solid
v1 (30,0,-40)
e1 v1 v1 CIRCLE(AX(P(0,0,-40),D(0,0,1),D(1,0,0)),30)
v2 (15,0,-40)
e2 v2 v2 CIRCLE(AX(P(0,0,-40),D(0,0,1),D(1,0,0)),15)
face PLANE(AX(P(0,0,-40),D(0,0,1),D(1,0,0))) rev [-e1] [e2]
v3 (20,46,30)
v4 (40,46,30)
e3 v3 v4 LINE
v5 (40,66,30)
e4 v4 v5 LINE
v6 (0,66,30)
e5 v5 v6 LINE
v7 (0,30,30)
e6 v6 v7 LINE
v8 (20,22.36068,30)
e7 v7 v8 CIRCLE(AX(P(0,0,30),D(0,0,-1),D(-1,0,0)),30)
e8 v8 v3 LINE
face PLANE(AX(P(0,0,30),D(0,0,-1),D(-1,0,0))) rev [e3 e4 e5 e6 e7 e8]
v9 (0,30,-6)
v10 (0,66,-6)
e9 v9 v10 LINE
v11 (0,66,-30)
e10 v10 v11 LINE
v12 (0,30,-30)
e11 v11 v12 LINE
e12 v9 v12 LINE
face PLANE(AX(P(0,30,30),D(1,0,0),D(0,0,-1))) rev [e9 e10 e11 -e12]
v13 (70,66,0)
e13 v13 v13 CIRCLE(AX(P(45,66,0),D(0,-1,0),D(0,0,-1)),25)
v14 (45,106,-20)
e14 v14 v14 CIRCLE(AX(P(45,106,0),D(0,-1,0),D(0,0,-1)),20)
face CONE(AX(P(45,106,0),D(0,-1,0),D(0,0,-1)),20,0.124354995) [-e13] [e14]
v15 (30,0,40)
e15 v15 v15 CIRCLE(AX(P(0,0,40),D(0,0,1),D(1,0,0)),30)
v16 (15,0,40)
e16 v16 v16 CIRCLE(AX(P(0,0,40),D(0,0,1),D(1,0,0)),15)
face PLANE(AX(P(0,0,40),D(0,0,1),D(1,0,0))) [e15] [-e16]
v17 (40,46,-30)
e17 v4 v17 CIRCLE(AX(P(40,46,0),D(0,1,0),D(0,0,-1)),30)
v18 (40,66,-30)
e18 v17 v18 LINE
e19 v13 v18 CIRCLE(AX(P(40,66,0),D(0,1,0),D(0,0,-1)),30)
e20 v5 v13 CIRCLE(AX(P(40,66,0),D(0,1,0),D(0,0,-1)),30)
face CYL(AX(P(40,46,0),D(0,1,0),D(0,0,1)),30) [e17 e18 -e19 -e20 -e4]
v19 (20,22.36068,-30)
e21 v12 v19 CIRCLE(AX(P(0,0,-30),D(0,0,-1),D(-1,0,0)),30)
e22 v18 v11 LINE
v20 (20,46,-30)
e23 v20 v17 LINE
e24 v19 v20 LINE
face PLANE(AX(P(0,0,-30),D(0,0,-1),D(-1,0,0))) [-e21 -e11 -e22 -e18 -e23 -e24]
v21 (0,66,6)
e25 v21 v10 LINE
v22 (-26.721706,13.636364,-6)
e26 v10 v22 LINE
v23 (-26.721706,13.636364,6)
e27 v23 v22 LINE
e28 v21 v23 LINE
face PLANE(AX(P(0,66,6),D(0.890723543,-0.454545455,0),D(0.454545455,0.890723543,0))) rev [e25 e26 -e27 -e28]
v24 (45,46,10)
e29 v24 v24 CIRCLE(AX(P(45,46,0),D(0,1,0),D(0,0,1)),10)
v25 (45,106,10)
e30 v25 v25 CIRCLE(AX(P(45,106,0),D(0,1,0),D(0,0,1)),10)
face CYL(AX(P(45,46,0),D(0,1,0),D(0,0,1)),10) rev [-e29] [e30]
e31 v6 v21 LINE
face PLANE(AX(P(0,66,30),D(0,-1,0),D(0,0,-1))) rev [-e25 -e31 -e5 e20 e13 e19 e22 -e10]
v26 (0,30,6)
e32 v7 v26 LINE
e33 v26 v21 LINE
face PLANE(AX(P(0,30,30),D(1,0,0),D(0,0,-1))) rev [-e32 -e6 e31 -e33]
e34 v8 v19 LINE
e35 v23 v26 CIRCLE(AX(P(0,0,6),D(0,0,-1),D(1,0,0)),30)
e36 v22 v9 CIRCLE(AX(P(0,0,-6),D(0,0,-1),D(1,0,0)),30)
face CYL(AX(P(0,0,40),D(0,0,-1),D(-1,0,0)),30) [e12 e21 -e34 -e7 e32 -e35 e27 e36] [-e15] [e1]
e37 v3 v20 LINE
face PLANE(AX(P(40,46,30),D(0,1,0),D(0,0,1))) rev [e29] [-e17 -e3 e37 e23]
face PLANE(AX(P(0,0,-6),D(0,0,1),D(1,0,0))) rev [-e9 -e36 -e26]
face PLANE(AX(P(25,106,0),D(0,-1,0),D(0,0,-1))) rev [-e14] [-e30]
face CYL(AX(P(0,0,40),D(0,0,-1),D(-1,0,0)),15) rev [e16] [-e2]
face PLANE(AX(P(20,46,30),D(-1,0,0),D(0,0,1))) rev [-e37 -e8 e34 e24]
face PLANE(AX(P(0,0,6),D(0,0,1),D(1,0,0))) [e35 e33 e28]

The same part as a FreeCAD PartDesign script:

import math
import FreeCAD as App
import Part
import Sketcher

doc = App.newDocument("Part")
body = doc.addObject("PartDesign::Body", "Body")

sketch1 = body.newObject("Sketcher::SketchObject", "Sketch")
sketch1.AttachmentSupport = (doc.getObject("XY_Plane"), [""])
sketch1.MapMode = "FlatFace"
sketch1.addGeometry([
    Part.Circle(App.Vector(0, 0, 0), App.Vector(0, 0, 1), 30),
    Part.Circle(App.Vector(0, 0, 0), App.Vector(0, 0, 1), 15),
], False)
sketch1.addConstraint([
    Sketcher.Constraint("Coincident", 0, 3, -1, 1),
    Sketcher.Constraint("Coincident", 1, 3, -1, 1),
    Sketcher.Constraint("Diameter", 0, 60.0),
    Sketcher.Constraint("Diameter", 1, 30.0),
])
pad1 = body.newObject("PartDesign::Pad", "Pad")
pad1.Profile = sketch1
pad1.Length = 80
pad1.Midplane = True

sketch2 = body.newObject("Sketcher::SketchObject", "Sketch001")
sketch2.AttachmentSupport = (doc.getObject("XY_Plane"), [""])
sketch2.MapMode = "FlatFace"
sketch2.addGeometry([
    Part.LineSegment(App.Vector(0, 66, 0), App.Vector(0, 30, 0)),
    Part.ArcOfCircle(Part.Circle(App.Vector(0, 0, 0), App.Vector(0, 0, 1), 30), math.radians(48), math.radians(90)),
    Part.LineSegment(App.Vector(20, 22, 0), App.Vector(20, 46, 0)),
    Part.LineSegment(App.Vector(20, 46, 0), App.Vector(40, 46, 0)),
    Part.LineSegment(App.Vector(40, 46, 0), App.Vector(40, 66, 0)),
    Part.LineSegment(App.Vector(40, 66, 0), App.Vector(0, 66, 0)),
], False)
sketch2.addConstraint([
    Sketcher.Constraint("Coincident", 0, 2, 1, 2),
    Sketcher.Constraint("Coincident", 1, 1, 2, 1),
    Sketcher.Constraint("Coincident", 2, 2, 3, 1),
    Sketcher.Constraint("Coincident", 3, 2, 4, 1),
    Sketcher.Constraint("Coincident", 4, 2, 5, 1),
    Sketcher.Constraint("Coincident", 5, 2, 0, 1),
    Sketcher.Constraint("Vertical", 0),
    Sketcher.Constraint("Vertical", 2),
    Sketcher.Constraint("Horizontal", 3),
    Sketcher.Constraint("Vertical", 4),
    Sketcher.Constraint("Horizontal", 5),
    Sketcher.Constraint("Coincident", 1, 3, -1, 1),
    Sketcher.Constraint("PointOnObject", 0, 2, -2),
    Sketcher.Constraint("Equal", 3, 4),
    Sketcher.Constraint("Radius", 1, 30.0),
    Sketcher.Constraint("DistanceX", 3, 1, 3, 2, 20.0),
    Sketcher.Constraint("DistanceX", 5, 2, 5, 1, 40.0),
    Sketcher.Constraint("DistanceY", 0, 2, 0, 1, 36.0),
])
pad2 = body.newObject("PartDesign::Pad", "Pad001")
pad2.Profile = sketch2
pad2.Length = 60
pad2.Midplane = True

sketch3 = body.newObject("Sketcher::SketchObject", "Sketch002")
sketch3.AttachmentSupport = (doc.getObject("XZ_Plane"), [""])
sketch3.MapMode = "FlatFace"
sketch3.AttachmentOffset = App.Placement(App.Vector(0, 0, -66), App.Rotation())
sketch3.addGeometry([
    Part.LineSegment(App.Vector(40, -30, 0), App.Vector(40, 30, 0)),
    Part.ArcOfCircle(Part.Circle(App.Vector(40, 0, 0), App.Vector(0, 0, 1), 30), math.radians(-90), math.radians(90)),
], False)
sketch3.addConstraint([
    Sketcher.Constraint("Coincident", 0, 1, 1, 1),
    Sketcher.Constraint("Coincident", 1, 2, 0, 2),
    Sketcher.Constraint("Vertical", 0),
    Sketcher.Constraint("PointOnObject", 1, 3, -1),
    Sketcher.Constraint("Vertical", 1, 3, 0, 1),
    Sketcher.Constraint("Radius", 1, 30.0),
    Sketcher.Constraint("DistanceX", -1, 1, 1, 3, 40.0),
])
pad3 = body.newObject("PartDesign::Pad", "Pad002")
pad3.Profile = sketch3
pad3.Length = 20

sketch4 = body.newObject("Sketcher::SketchObject", "Sketch003")
sketch4.AttachmentSupport = (doc.getObject("XY_Plane"), [""])
sketch4.MapMode = "FlatFace"
sketch4.addGeometry([
    Part.LineSegment(App.Vector(0, 66, 0), App.Vector(-27, 14, 0)),
    Part.ArcOfCircle(Part.Circle(App.Vector(0, 0, 0), App.Vector(0, 0, 1), 30), math.radians(90), math.radians(153)),
    Part.LineSegment(App.Vector(0, 30, 0), App.Vector(0, 66, 0)),
], False)
sketch4.addConstraint([
    Sketcher.Constraint("Tangent", 0, 2, 1, 2),
    Sketcher.Constraint("Coincident", 1, 1, 2, 1),
    Sketcher.Constraint("Coincident", 2, 2, 0, 1),
    Sketcher.Constraint("Vertical", 2),
    Sketcher.Constraint("Coincident", 1, 3, -1, 1),
    Sketcher.Constraint("PointOnObject", 1, 1, -2),
    Sketcher.Constraint("Radius", 1, 30.0),
    Sketcher.Constraint("DistanceY", 2, 1, 2, 2, 36.0),
])
pad4 = body.newObject("PartDesign::Pad", "Pad003")
pad4.Profile = sketch4
pad4.Length = 12
pad4.Midplane = True

sketch5 = body.newObject("Sketcher::SketchObject", "Sketch004")
sketch5.AttachmentSupport = (doc.getObject("XY_Plane"), [""])
sketch5.MapMode = "FlatFace"
sketch5.addGeometry([
    Part.LineSegment(App.Vector(20, 66, 0), App.Vector(45, 66, 0)),
    Part.LineSegment(App.Vector(45, 66, 0), App.Vector(45, 106, 0)),
    Part.LineSegment(App.Vector(45, 106, 0), App.Vector(25, 106, 0)),
    Part.LineSegment(App.Vector(25, 106, 0), App.Vector(20, 66, 0)),
], False)
sketch5.addGeometry(Part.LineSegment(App.Vector(45, 66, 0), App.Vector(45, 106, 0)), True)
sketch5.addConstraint([
    Sketcher.Constraint("Coincident", 0, 2, 1, 1),
    Sketcher.Constraint("Coincident", 1, 2, 2, 1),
    Sketcher.Constraint("Coincident", 2, 2, 3, 1),
    Sketcher.Constraint("Coincident", 3, 2, 0, 1),
    Sketcher.Constraint("Horizontal", 0),
    Sketcher.Constraint("Vertical", 1),
    Sketcher.Constraint("Horizontal", 2),
    Sketcher.Constraint("Vertical", 4),
    Sketcher.Constraint("Coincident", 4, 1, 0, 2),
    Sketcher.Constraint("Horizontal", 2, 2, 4, 2),
    Sketcher.Constraint("DistanceX", 0, 1, 0, 2, 25.0),
    Sketcher.Constraint("DistanceX", 2, 2, 2, 1, 20.0),
    Sketcher.Constraint("DistanceY", 1, 1, 1, 2, 40.0),
    Sketcher.Constraint("DistanceX", -1, 1, 0, 2, 45.0),
    Sketcher.Constraint("DistanceY", -1, 1, 0, 2, 66.0),
])
revolution = body.newObject("PartDesign::Revolution", "Revolution")
revolution.Profile = sketch5
revolution.ReferenceAxis = (sketch5, ["Axis0"])
revolution.Angle = 360

sketch6 = body.newObject("Sketcher::SketchObject", "Sketch005")
sketch6.AttachmentSupport = (doc.getObject("XZ_Plane"), [""])
sketch6.MapMode = "FlatFace"
sketch6.AttachmentOffset = App.Placement(App.Vector(0, 0, -106), App.Rotation())
sketch6.addGeometry(Part.Circle(App.Vector(45, 0, 0), App.Vector(0, 0, 1), 10), False)
sketch6.addConstraint([
    Sketcher.Constraint("PointOnObject", 0, 3, -1),
    Sketcher.Constraint("Diameter", 0, 20.0),
    Sketcher.Constraint("DistanceX", -1, 1, 0, 3, 45.0),
])
pocket1 = body.newObject("PartDesign::Pocket", "Pocket")
pocket1.Profile = sketch6
pocket1.Length = 60
pocket1.Reversed = True

doc.recompute()
